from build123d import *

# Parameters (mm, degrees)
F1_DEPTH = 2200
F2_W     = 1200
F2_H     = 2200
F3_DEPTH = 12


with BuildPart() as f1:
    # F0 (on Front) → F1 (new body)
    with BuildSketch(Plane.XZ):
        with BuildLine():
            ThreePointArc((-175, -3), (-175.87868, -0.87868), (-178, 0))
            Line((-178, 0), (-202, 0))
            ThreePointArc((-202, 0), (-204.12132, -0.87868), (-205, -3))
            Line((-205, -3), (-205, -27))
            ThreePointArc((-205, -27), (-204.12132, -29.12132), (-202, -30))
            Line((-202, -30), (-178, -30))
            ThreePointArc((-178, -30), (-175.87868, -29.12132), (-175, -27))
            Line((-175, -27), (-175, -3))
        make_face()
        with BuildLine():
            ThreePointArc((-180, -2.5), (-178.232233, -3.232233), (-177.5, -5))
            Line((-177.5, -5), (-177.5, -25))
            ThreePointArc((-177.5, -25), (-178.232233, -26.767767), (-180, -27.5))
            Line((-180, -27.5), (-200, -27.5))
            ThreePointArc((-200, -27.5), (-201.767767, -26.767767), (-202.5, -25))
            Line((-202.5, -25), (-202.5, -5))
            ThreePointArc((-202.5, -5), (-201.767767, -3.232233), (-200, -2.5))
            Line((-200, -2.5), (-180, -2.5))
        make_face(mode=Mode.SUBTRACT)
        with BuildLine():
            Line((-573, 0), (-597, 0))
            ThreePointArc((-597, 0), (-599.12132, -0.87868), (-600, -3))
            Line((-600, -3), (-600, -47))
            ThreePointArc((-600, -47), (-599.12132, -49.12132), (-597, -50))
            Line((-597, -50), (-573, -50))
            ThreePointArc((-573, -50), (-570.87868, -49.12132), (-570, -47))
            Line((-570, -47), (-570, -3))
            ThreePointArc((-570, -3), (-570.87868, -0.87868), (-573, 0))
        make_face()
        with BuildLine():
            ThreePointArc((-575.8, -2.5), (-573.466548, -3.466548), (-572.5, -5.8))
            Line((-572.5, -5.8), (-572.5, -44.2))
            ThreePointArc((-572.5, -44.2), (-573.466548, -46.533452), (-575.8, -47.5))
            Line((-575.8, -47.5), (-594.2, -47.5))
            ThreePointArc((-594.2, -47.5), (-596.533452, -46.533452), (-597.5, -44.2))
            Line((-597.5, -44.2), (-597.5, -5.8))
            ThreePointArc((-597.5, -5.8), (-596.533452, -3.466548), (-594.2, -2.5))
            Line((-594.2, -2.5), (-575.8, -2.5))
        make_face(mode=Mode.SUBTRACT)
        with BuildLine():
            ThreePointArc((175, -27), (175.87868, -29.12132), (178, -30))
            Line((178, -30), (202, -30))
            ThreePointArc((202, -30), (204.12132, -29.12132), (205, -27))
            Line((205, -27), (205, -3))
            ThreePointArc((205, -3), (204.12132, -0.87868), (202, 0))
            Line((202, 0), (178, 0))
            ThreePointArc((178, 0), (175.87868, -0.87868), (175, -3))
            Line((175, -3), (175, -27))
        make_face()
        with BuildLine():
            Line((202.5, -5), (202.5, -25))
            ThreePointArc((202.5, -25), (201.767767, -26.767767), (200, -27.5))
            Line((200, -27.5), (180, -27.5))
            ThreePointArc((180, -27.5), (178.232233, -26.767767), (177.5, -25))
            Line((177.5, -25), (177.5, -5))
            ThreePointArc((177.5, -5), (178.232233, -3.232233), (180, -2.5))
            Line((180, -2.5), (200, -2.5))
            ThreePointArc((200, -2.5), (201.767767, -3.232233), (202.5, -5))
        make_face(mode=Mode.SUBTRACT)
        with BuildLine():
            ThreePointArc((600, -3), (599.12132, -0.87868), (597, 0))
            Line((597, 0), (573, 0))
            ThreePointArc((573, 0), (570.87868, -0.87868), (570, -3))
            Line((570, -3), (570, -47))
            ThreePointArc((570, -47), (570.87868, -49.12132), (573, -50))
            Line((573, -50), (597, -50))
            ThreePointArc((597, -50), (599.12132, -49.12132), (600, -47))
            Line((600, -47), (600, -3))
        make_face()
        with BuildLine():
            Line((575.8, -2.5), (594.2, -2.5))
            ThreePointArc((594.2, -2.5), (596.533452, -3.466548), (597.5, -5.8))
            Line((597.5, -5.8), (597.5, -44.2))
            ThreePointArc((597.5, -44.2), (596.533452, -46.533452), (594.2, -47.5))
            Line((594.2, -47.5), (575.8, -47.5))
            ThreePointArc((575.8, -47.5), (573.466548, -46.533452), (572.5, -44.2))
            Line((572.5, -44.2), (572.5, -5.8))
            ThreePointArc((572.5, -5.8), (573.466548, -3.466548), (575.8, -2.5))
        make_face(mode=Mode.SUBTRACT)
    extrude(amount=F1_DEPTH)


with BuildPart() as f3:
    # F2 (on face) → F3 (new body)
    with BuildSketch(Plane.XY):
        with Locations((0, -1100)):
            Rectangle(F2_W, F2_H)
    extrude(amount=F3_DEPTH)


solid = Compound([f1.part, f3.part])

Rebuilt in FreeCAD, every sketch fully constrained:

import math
import FreeCAD as App
import Part
import Sketcher

V = App.Vector

doc = App.newDocument("Part")
params = doc.addObject("Spreadsheet::Sheet", "Params")
for row, (alias, value) in enumerate([
    ("sketch1_radius", "3.000001 mm"),
    ("sketch1_radius2", "2.5 mm"),
    ("sketch1_radius3", "3.300001 mm"),
    ("sketch1_width", "24 mm"),
    ("sketch1_width2", "20 mm"),
    ("pad1_length", "2200 mm"),
    ("sketch2_width", "1200 mm"),
    ("sketch2_height", "2200 mm"),
    ("pad2_length", "12 mm"),
], start=1):
    params.set(f"A{row}", alias)
    params.set(f"B{row}", "=" + value)
    params.setAlias(f"B{row}", alias)

body = doc.addObject("PartDesign::Body", "Body")
body.AllowCompound = True

# Sketch on XZ plane
sketch1 = body.newObject("Sketcher::SketchObject", "Sketch")
sketch1.AttachmentSupport = (doc.getObject("XZ_Plane"), [""])
sketch1.MapMode = "FlatFace"
sketch1.addGeometry(Part.ArcOfCircle(Part.Circle(V(-178.000001, -3.000001, 0), V(0, 0, 1), 3.000001), math.radians(0.000022), math.radians(89.999978)), False)
sketch1.addGeometry(Part.LineSegment(V(-178, 0, 0), V(-202, 0, 0)), False)
sketch1.addGeometry(Part.ArcOfCircle(Part.Circle(V(-201.999999, -3.000001, 0), V(0, 0, 1), 3.000001), math.radians(90.000022), math.radians(179.999978)), False)
sketch1.addGeometry(Part.LineSegment(V(-205, -3, 0), V(-205, -27, 0)), False)
sketch1.addGeometry(Part.ArcOfCircle(Part.Circle(V(-201.999999, -26.999999, 0), V(0, 0, 1), 3.000001), math.radians(-179.999978), math.radians(-90.000022)), False)
sketch1.addGeometry(Part.LineSegment(V(-202, -30, 0), V(-178, -30, 0)), False)
sketch1.addGeometry(Part.ArcOfCircle(Part.Circle(V(-178.000001, -26.999999, 0), V(0, 0, 1), 3.000001), math.radians(-89.999978), math.radians(-0.000022)), False)
sketch1.addGeometry(Part.LineSegment(V(-175, -27, 0), V(-175, -3, 0)), False)
sketch1.addGeometry(Part.LineSegment(V(-200, -2.5, 0), V(-180, -2.5, 0)), False)
sketch1.addGeometry(Part.ArcOfCircle(Part.Circle(V(-180, -5, 0), V(0, 0, 1), 2.5), math.radians(-0.000004), math.radians(90.000004)), False)
sketch1.addGeometry(Part.LineSegment(V(-177.5, -5, 0), V(-177.5, -25, 0)), False)
sketch1.addGeometry(Part.ArcOfCircle(Part.Circle(V(-180, -25, 0), V(0, 0, 1), 2.5), math.radians(-90.000004), math.radians(0.000004)), False)
sketch1.addGeometry(Part.LineSegment(V(-180, -27.5, 0), V(-200, -27.5, 0)), False)
sketch1.addGeometry(Part.ArcOfCircle(Part.Circle(V(-200, -25, 0), V(0, 0, 1), 2.5), math.radians(179.999996), math.radians(270.000004)), False)
sketch1.addGeometry(Part.LineSegment(V(-202.5, -25, 0), V(-202.5, -5, 0)), False)
sketch1.addGeometry(Part.ArcOfCircle(Part.Circle(V(-200, -5, 0), V(0, 0, 1), 2.5), math.radians(89.999996), math.radians(180.000004)), False)
sketch1.addGeometry(Part.LineSegment(V(-573, 0, 0), V(-597, 0, 0)), False)
sketch1.addGeometry(Part.ArcOfCircle(Part.Circle(V(-596.999999, -3.000001, 0), V(0, 0, 1), 3.000001), math.radians(90.000022), math.radians(179.999978)), False)
sketch1.addGeometry(Part.LineSegment(V(-600, -3, 0), V(-600, -47, 0)), False)
sketch1.addGeometry(Part.ArcOfCircle(Part.Circle(V(-596.999999, -46.999999, 0), V(0, 0, 1), 3.000001), math.radians(-179.999978), math.radians(-90.000022)), False)
sketch1.addGeometry(Part.LineSegment(V(-597, -50, 0), V(-573, -50, 0)), False)
sketch1.addGeometry(Part.ArcOfCircle(Part.Circle(V(-573.000001, -46.999999, 0), V(0, 0, 1), 3.000001), math.radians(-89.999978), math.radians(-0.000022)), False)
sketch1.addGeometry(Part.LineSegment(V(-570, -47, 0), V(-570, -3, 0)), False)
sketch1.addGeometry(Part.ArcOfCircle(Part.Circle(V(-573.000001, -3.000001, 0), V(0, 0, 1), 3.000001), math.radians(0.000022), math.radians(89.999978)), False)
sketch1.addGeometry(Part.LineSegment(V(-594.2, -2.5, 0), V(-575.8, -2.5, 0)), False)
sketch1.addGeometry(Part.ArcOfCircle(Part.Circle(V(-575.800001, -5.800001, 0), V(0, 0, 1), 3.300001), math.radians(0.000022), math.radians(89.999978)), False)
sketch1.addGeometry(Part.LineSegment(V(-572.5, -5.8, 0), V(-572.5, -44.2, 0)), False)
sketch1.addGeometry(Part.ArcOfCircle(Part.Circle(V(-575.800001, -44.199999, 0), V(0, 0, 1), 3.300001), math.radians(-89.999978), math.radians(-0.000022)), False)
sketch1.addGeometry(Part.LineSegment(V(-575.8, -47.5, 0), V(-594.2, -47.5, 0)), False)
sketch1.addGeometry(Part.ArcOfCircle(Part.Circle(V(-594.199999, -44.199999, 0), V(0, 0, 1), 3.300001), math.radians(-179.999978), math.radians(-90.000022)), False)
sketch1.addGeometry(Part.LineSegment(V(-597.5, -44.2, 0), V(-597.5, -5.8, 0)), False)
sketch1.addGeometry(Part.ArcOfCircle(Part.Circle(V(-594.199999, -5.800001, 0), V(0, 0, 1), 3.300001), math.radians(90.000022), math.radians(179.999978)), False)
sketch1.addGeometry(Part.ArcOfCircle(Part.Circle(V(178.000001, -26.999999, 0), V(0, 0, 1), 3.000001), math.radians(-179.999978), math.radians(-90.000022)), False)
sketch1.addGeometry(Part.LineSegment(V(178, -30, 0), V(202, -30, 0)), False)
sketch1.addGeometry(Part.ArcOfCircle(Part.Circle(V(201.999999, -26.999999, 0), V(0, 0, 1), 3.000001), math.radians(-89.999978), math.radians(-0.000022)), False)
sketch1.addGeometry(Part.LineSegment(V(205, -27, 0), V(205, -3, 0)), False)
sketch1.addGeometry(Part.ArcOfCircle(Part.Circle(V(201.999999, -3.000001, 0), V(0, 0, 1), 3.000001), math.radians(0.000022), math.radians(89.999978)), False)
sketch1.addGeometry(Part.LineSegment(V(202, 0, 0), V(178, 0, 0)), False)
sketch1.addGeometry(Part.ArcOfCircle(Part.Circle(V(178.000001, -3.000001, 0), V(0, 0, 1), 3.000001), math.radians(90.000022), math.radians(179.999978)), False)
sketch1.addGeometry(Part.LineSegment(V(175, -3, 0), V(175, -27, 0)), False)
sketch1.addGeometry(Part.ArcOfCircle(Part.Circle(V(200, -5, 0), V(0, 0, 1), 2.5), math.radians(-0.000004), math.radians(90.000004)), False)
sketch1.addGeometry(Part.LineSegment(V(202.5, -5, 0), V(202.5, -25, 0)), False)
sketch1.addGeometry(Part.ArcOfCircle(Part.Circle(V(200, -25, 0), V(0, 0, 1), 2.5), math.radians(-90.000004), math.radians(0.000004)), False)
sketch1.addGeometry(Part.LineSegment(V(200, -27.5, 0), V(180, -27.5, 0)), False)
sketch1.addGeometry(Part.ArcOfCircle(Part.Circle(V(180, -25, 0), V(0, 0, 1), 2.5), math.radians(179.999996), math.radians(270.000004)), False)
sketch1.addGeometry(Part.LineSegment(V(177.5, -25, 0), V(177.5, -5, 0)), False)
sketch1.addGeometry(Part.ArcOfCircle(Part.Circle(V(180, -5, 0), V(0, 0, 1), 2.5), math.radians(89.999996), math.radians(180.000004)), False)
sketch1.addGeometry(Part.LineSegment(V(180, -2.5, 0), V(200, -2.5, 0)), False)
sketch1.addGeometry(Part.ArcOfCircle(Part.Circle(V(596.999999, -3.000001, 0), V(0, 0, 1), 3.000001), math.radians(0.000022), math.radians(89.999978)), False)
sketch1.addGeometry(Part.LineSegment(V(597, 0, 0), V(573, 0, 0)), False)
sketch1.addGeometry(Part.ArcOfCircle(Part.Circle(V(573.000001, -3.000001, 0), V(0, 0, 1), 3.000001), math.radians(90.000022), math.radians(179.999978)), False)
sketch1.addGeometry(Part.LineSegment(V(570, -3, 0), V(570, -47, 0)), False)
sketch1.addGeometry(Part.ArcOfCircle(Part.Circle(V(573.000001, -46.999999, 0), V(0, 0, 1), 3.000001), math.radians(-179.999978), math.radians(-90.000022)), False)
sketch1.addGeometry(Part.LineSegment(V(573, -50, 0), V(597, -50, 0)), False)
sketch1.addGeometry(Part.ArcOfCircle(Part.Circle(V(596.999999, -46.999999, 0), V(0, 0, 1), 3.000001), math.radians(-89.999978), math.radians(-0.000022)), False)
sketch1.addGeometry(Part.LineSegment(V(600, -47, 0), V(600, -3, 0)), False)
sketch1.addGeometry(Part.ArcOfCircle(Part.Circle(V(575.800001, -5.800001, 0), V(0, 0, 1), 3.300001), math.radians(90.000022), math.radians(179.999978)), False)
sketch1.addGeometry(Part.LineSegment(V(575.8, -2.5, 0), V(594.2, -2.5, 0)), False)
sketch1.addGeometry(Part.ArcOfCircle(Part.Circle(V(594.199999, -5.800001, 0), V(0, 0, 1), 3.300001), math.radians(0.000022), math.radians(89.999978)), False)
sketch1.addGeometry(Part.LineSegment(V(597.5, -5.8, 0), V(597.5, -44.2, 0)), False)
sketch1.addGeometry(Part.ArcOfCircle(Part.Circle(V(594.199999, -44.199999, 0), V(0, 0, 1), 3.300001), math.radians(-89.999978), math.radians(-0.000022)), False)
sketch1.addGeometry(Part.LineSegment(V(594.2, -47.5, 0), V(575.8, -47.5, 0)), False)
sketch1.addGeometry(Part.ArcOfCircle(Part.Circle(V(575.800001, -44.199999, 0), V(0, 0, 1), 3.300001), math.radians(-179.999978), math.radians(-90.000022)), False)
sketch1.addGeometry(Part.LineSegment(V(572.5, -44.2, 0), V(572.5, -5.8, 0)), False)
sketch1.addConstraint(Sketcher.Constraint("Tangent", 0, 2, 1, 1))
sketch1.addConstraint(Sketcher.Constraint("Tangent", 1, 2, 2, 1))
sketch1.addConstraint(Sketcher.Constraint("Tangent", 2, 2, 3, 1))
sketch1.addConstraint(Sketcher.Constraint("Tangent", 3, 2, 4, 1))
sketch1.addConstraint(Sketcher.Constraint("Tangent", 4, 2, 5, 1))
sketch1.addConstraint(Sketcher.Constraint("Tangent", 5, 2, 6, 1))
sketch1.addConstraint(Sketcher.Constraint("Tangent", 6, 2, 7, 1))
sketch1.addConstraint(Sketcher.Constraint("Tangent", 7, 2, 0, 1))
sketch1.addConstraint(Sketcher.Constraint("Tangent", 8, 2, 9, 2))
sketch1.addConstraint(Sketcher.Constraint("Tangent", 9, 1, 10, 1))
sketch1.addConstraint(Sketcher.Constraint("Tangent", 10, 2, 11, 2))
sketch1.addConstraint(Sketcher.Constraint("Tangent", 11, 1, 12, 1))
sketch1.addConstraint(Sketcher.Constraint("Tangent", 12, 2, 13, 2))
sketch1.addConstraint(Sketcher.Constraint("Tangent", 13, 1, 14, 1))
sketch1.addConstraint(Sketcher.Constraint("Tangent", 14, 2, 15, 2))
sketch1.addConstraint(Sketcher.Constraint("Tangent", 15, 1, 8, 1))
sketch1.addConstraint(Sketcher.Constraint("Tangent", 16, 2, 17, 1))
sketch1.addConstraint(Sketcher.Constraint("Tangent", 17, 2, 18, 1))
sketch1.addConstraint(Sketcher.Constraint("Tangent", 18, 2, 19, 1))
sketch1.addConstraint(Sketcher.Constraint("Tangent", 19, 2, 20, 1))
sketch1.addConstraint(Sketcher.Constraint("Tangent", 20, 2, 21, 1))
sketch1.addConstraint(Sketcher.Constraint("Tangent", 21, 2, 22, 1))
sketch1.addConstraint(Sketcher.Constraint("Tangent", 22, 2, 23, 1))
sketch1.addConstraint(Sketcher.Constraint("Tangent", 23, 2, 16, 1))
sketch1.addConstraint(Sketcher.Constraint("Tangent", 24, 2, 25, 2))
sketch1.addConstraint(Sketcher.Constraint("Tangent", 25, 1, 26, 1))
sketch1.addConstraint(Sketcher.Constraint("Tangent", 26, 2, 27, 2))
sketch1.addConstraint(Sketcher.Constraint("Tangent", 27, 1, 28, 1))
sketch1.addConstraint(Sketcher.Constraint("Tangent", 28, 2, 29, 2))
sketch1.addConstraint(Sketcher.Constraint("Tangent", 29, 1, 30, 1))
sketch1.addConstraint(Sketcher.Constraint("Tangent", 30, 2, 31, 2))
sketch1.addConstraint(Sketcher.Constraint("Tangent", 31, 1, 24, 1))
sketch1.addConstraint(Sketcher.Constraint("Tangent", 32, 2, 33, 1))
sketch1.addConstraint(Sketcher.Constraint("Tangent", 33, 2, 34, 1))
sketch1.addConstraint(Sketcher.Constraint("Tangent", 34, 2, 35, 1))
sketch1.addConstraint(Sketcher.Constraint("Tangent", 35, 2, 36, 1))
sketch1.addConstraint(Sketcher.Constraint("Tangent", 36, 2, 37, 1))
sketch1.addConstraint(Sketcher.Constraint("Tangent", 37, 2, 38, 1))
sketch1.addConstraint(Sketcher.Constraint("Tangent", 38, 2, 39, 1))
sketch1.addConstraint(Sketcher.Constraint("Tangent", 39, 2, 32, 1))
sketch1.addConstraint(Sketcher.Constraint("Tangent", 40, 1, 41, 1))
sketch1.addConstraint(Sketcher.Constraint("Tangent", 41, 2, 42, 2))
sketch1.addConstraint(Sketcher.Constraint("Tangent", 42, 1, 43, 1))
sketch1.addConstraint(Sketcher.Constraint("Tangent", 43, 2, 44, 2))
sketch1.addConstraint(Sketcher.Constraint("Tangent", 44, 1, 45, 1))
sketch1.addConstraint(Sketcher.Constraint("Tangent", 45, 2, 46, 2))
sketch1.addConstraint(Sketcher.Constraint("Tangent", 46, 1, 47, 1))
sketch1.addConstraint(Sketcher.Constraint("Tangent", 47, 2, 40, 2))
sketch1.addConstraint(Sketcher.Constraint("Tangent", 48, 2, 49, 1))
sketch1.addConstraint(Sketcher.Constraint("Tangent", 49, 2, 50, 1))
sketch1.addConstraint(Sketcher.Constraint("Tangent", 50, 2, 51, 1))
sketch1.addConstraint(Sketcher.Constraint("Tangent", 51, 2, 52, 1))
sketch1.addConstraint(Sketcher.Constraint("Tangent", 52, 2, 53, 1))
sketch1.addConstraint(Sketcher.Constraint("Tangent", 53, 2, 54, 1))
sketch1.addConstraint(Sketcher.Constraint("Tangent", 54, 2, 55, 1))
sketch1.addConstraint(Sketcher.Constraint("Tangent", 55, 2, 48, 1))
sketch1.addConstraint(Sketcher.Constraint("Tangent", 56, 1, 57, 1))
sketch1.addConstraint(Sketcher.Constraint("Tangent", 57, 2, 58, 2))
sketch1.addConstraint(Sketcher.Constraint("Tangent", 58, 1, 59, 1))
sketch1.addConstraint(Sketcher.Constraint("Tangent", 59, 2, 60, 2))
sketch1.addConstraint(Sketcher.Constraint("Tangent", 60, 1, 61, 1))
sketch1.addConstraint(Sketcher.Constraint("Tangent", 61, 2, 62, 2))
sketch1.addConstraint(Sketcher.Constraint("Tangent", 62, 1, 63, 1))
sketch1.addConstraint(Sketcher.Constraint("Tangent", 63, 2, 56, 2))
sketch1.addConstraint(Sketcher.Constraint("Horizontal", 1))
sketch1.addConstraint(Sketcher.Constraint("Vertical", 3))
sketch1.addConstraint(Sketcher.Constraint("Horizontal", 5))
sketch1.addConstraint(Sketcher.Constraint("Vertical", 7))
sketch1.addConstraint(Sketcher.Constraint("Horizontal", 8))
sketch1.addConstraint(Sketcher.Constraint("Vertical", 10))
sketch1.addConstraint(Sketcher.Constraint("Horizontal", 12))
sketch1.addConstraint(Sketcher.Constraint("Vertical", 14))
sketch1.addConstraint(Sketcher.Constraint("Horizontal", 16))
sketch1.addConstraint(Sketcher.Constraint("Vertical", 18))
sketch1.addConstraint(Sketcher.Constraint("Horizontal", 20))
sketch1.addConstraint(Sketcher.Constraint("Vertical", 22))
sketch1.addConstraint(Sketcher.Constraint("Horizontal", 24))
sketch1.addConstraint(Sketcher.Constraint("Vertical", 26))
sketch1.addConstraint(Sketcher.Constraint("Horizontal", 28))
sketch1.addConstraint(Sketcher.Constraint("Vertical", 30))
sketch1.addConstraint(Sketcher.Constraint("Horizontal", 33))
sketch1.addConstraint(Sketcher.Constraint("Vertical", 35))
sketch1.addConstraint(Sketcher.Constraint("Horizontal", 37))
sketch1.addConstraint(Sketcher.Constraint("Vertical", 39))
sketch1.addConstraint(Sketcher.Constraint("Vertical", 41))
sketch1.addConstraint(Sketcher.Constraint("Horizontal", 43))
sketch1.addConstraint(Sketcher.Constraint("Vertical", 45))
sketch1.addConstraint(Sketcher.Constraint("Horizontal", 47))
sketch1.addConstraint(Sketcher.Constraint("Horizontal", 49))
sketch1.addConstraint(Sketcher.Constraint("Vertical", 51))
sketch1.addConstraint(Sketcher.Constraint("Horizontal", 53))
sketch1.addConstraint(Sketcher.Constraint("Vertical", 55))
sketch1.addConstraint(Sketcher.Constraint("Horizontal", 57))
sketch1.addConstraint(Sketcher.Constraint("Vertical", 59))
sketch1.addConstraint(Sketcher.Constraint("Horizontal", 61))
sketch1.addConstraint(Sketcher.Constraint("Vertical", 63))
sketch1.addConstraint(Sketcher.Constraint("Equal", 0, 2))
sketch1.addConstraint(Sketcher.Constraint("Equal", 2, 4))
sketch1.addConstraint(Sketcher.Constraint("Equal", 4, 6))
sketch1.addConstraint(Sketcher.Constraint("Equal", 9, 11))
sketch1.addConstraint(Sketcher.Constraint("Equal", 11, 13))
sketch1.addConstraint(Sketcher.Constraint("Equal", 13, 15))
sketch1.addConstraint(Sketcher.Constraint("Equal", 6, 17))
sketch1.addConstraint(Sketcher.Constraint("Equal", 17, 19))
sketch1.addConstraint(Sketcher.Constraint("Equal", 19, 21))
sketch1.addConstraint(Sketcher.Constraint("Equal", 21, 23))
sketch1.addConstraint(Sketcher.Constraint("Equal", 25, 27))
sketch1.addConstraint(Sketcher.Constraint("Equal", 27, 29))
sketch1.addConstraint(Sketcher.Constraint("Equal", 29, 31))
sketch1.addConstraint(Sketcher.Constraint("Equal", 23, 32))
sketch1.addConstraint(Sketcher.Constraint("Equal", 32, 34))
sketch1.addConstraint(Sketcher.Constraint("Equal", 34, 36))
sketch1.addConstraint(Sketcher.Constraint("Equal", 36, 38))
sketch1.addConstraint(Sketcher.Constraint("Equal", 15, 40))
sketch1.addConstraint(Sketcher.Constraint("Equal", 40, 42))
sketch1.addConstraint(Sketcher.Constraint("Equal", 42, 44))
sketch1.addConstraint(Sketcher.Constraint("Equal", 44, 46))
sketch1.addConstraint(Sketcher.Constraint("Equal", 38, 48))
sketch1.addConstraint(Sketcher.Constraint("Equal", 48, 50))
sketch1.addConstraint(Sketcher.Constraint("Equal", 50, 52))
sketch1.addConstraint(Sketcher.Constraint("Equal", 52, 54))
sketch1.addConstraint(Sketcher.Constraint("Equal", 31, 56))
sketch1.addConstraint(Sketcher.Constraint("Equal", 56, 58))
sketch1.addConstraint(Sketcher.Constraint("Equal", 58, 60))
sketch1.addConstraint(Sketcher.Constraint("Equal", 60, 62))
sketch1.addConstraint(Sketcher.Constraint("Symmetric", 1, 2, 36, 2, -1, 1))
sketch1.addConstraint(Sketcher.Constraint("Symmetric", 16, 2, 48, 2, -1, 1))
sketch1.addConstraint(Sketcher.Constraint("Symmetric", 6, 3, 32, 3, -2))
sketch1.addConstraint(Sketcher.Constraint("Symmetric", 15, 3, 40, 3, -2))
sketch1.addConstraint(Sketcher.Constraint("Symmetric", 11, 3, 44, 3, -2))
sketch1.addConstraint(Sketcher.Constraint("Symmetric", 23, 3, 50, 3, -2))
sketch1.addConstraint(Sketcher.Constraint("Symmetric", 25, 3, 56, 3, -2))
sketch1.addConstraint(Sketcher.Constraint("Symmetric", 29, 3, 60, 3, -2))
sketch1.addConstraint(Sketcher.Constraint("PointOnObject", 0, 2, -1))
sketch1.addConstraint(Sketcher.Constraint("Horizontal", 21, 3, 52, 3))
sketch1.addConstraint(Sketcher.Constraint("Horizontal", 15, 1, 24, 2))
sketch1.addConstraint(Sketcher.Constraint("Equal", 5, 16))
sketch1.addConstraint(Sketcher.Constraint("Equal", 53, 3))
sketch1.addConstraint(Sketcher.Constraint("Equal", 47, 10))
sketch1.addConstraint(Sketcher.Constraint("Radius", 0, 3.000001))
sketch1.addConstraint(Sketcher.Constraint("Radius", 9, 2.5))
sketch1.addConstraint(Sketcher.Constraint("Radius", 25, 3.300001))
sketch1.addConstraint(Sketcher.Constraint("DistanceX", 1, 2, 1, 1, 24.0))
sketch1.addConstraint(Sketcher.Constraint("DistanceX", 8, 1, 8, 2, 20.0))
sketch1.addConstraint(Sketcher.Constraint("DistanceY", 18, 2, 18, 1, 44.0))
sketch1.addConstraint(Sketcher.Constraint("DistanceX", 24, 1, 24, 2, 18.4))
sketch1.addConstraint(Sketcher.Constraint("DistanceY", 26, 2, 26, 1, 38.4))
sketch1.addConstraint(Sketcher.Constraint("DistanceX", 0, 3, -1, 1, 178.000001))
sketch1.addConstraint(Sketcher.Constraint("DistanceX", 9, 3, -1, 1, 180.0))
sketch1.addConstraint(Sketcher.Constraint("DistanceY", 9, 3, -1, 1, 5.0))
sketch1.addConstraint(Sketcher.Constraint("DistanceX", 17, 3, -1, 1, 596.999999))
sketch1.addConstraint(Sketcher.Constraint("DistanceX", 25, 3, -1, 1, 575.800001))
sketch1.setExpression("Constraints[139]", "Params.sketch1_radius")
sketch1.setExpression("Constraints[140]", "Params.sketch1_radius2")
sketch1.setExpression("Constraints[141]", "Params.sketch1_radius3")
sketch1.setExpression("Constraints[142]", "Params.sketch1_width")
sketch1.setExpression("Constraints[143]", "Params.sketch1_width2")
pad1 = body.newObject("PartDesign::Pad", "Pad")
pad1.Profile = sketch1
pad1.setExpression("Length", "Params.pad1_length")
body2 = doc.addObject("PartDesign::Body", "Body001")

# Sketch on XY plane
sketch2 = body2.newObject("Sketcher::SketchObject", "Sketch001")
sketch2.AttachmentSupport = (doc.getObject("XY_Plane001"), [""])
sketch2.MapMode = "FlatFace"
sketch2.addGeometry(Part.LineSegment(V(-600, 0, 0), V(-600, -2200, 0)), False)
sketch2.addGeometry(Part.LineSegment(V(-600, -2200, 0), V(600, -2200, 0)), False)
sketch2.addGeometry(Part.LineSegment(V(600, -2200, 0), V(600, 0, 0)), False)
sketch2.addGeometry(Part.LineSegment(V(600, 0, 0), V(-600, 0, 0)), False)
sketch2.addConstraint(Sketcher.Constraint("Coincident", 0, 2, 1, 1))
sketch2.addConstraint(Sketcher.Constraint("Coincident", 1, 2, 2, 1))
sketch2.addConstraint(Sketcher.Constraint("Coincident", 2, 2, 3, 1))
sketch2.addConstraint(Sketcher.Constraint("Coincident", 3, 2, 0, 1))
sketch2.addConstraint(Sketcher.Constraint("Vertical", 0))
sketch2.addConstraint(Sketcher.Constraint("Horizontal", 1))
sketch2.addConstraint(Sketcher.Constraint("Vertical", 2))
sketch2.addConstraint(Sketcher.Constraint("Horizontal", 3))
sketch2.addConstraint(Sketcher.Constraint("Symmetric", 2, 2, 3, 2, -1, 1))
sketch2.addConstraint(Sketcher.Constraint("DistanceX", 1, 1, 1, 2, 1200.0))
sketch2.addConstraint(Sketcher.Constraint("DistanceY", 0, 2, 0, 1, 2200.0))
sketch2.setExpression("Constraints[9]", "Params.sketch2_width")
sketch2.setExpression("Constraints[10]", "Params.sketch2_height")
pad2 = body2.newObject("PartDesign::Pad", "Pad001")
pad2.Profile = sketch2
pad2.setExpression("Length", "Params.pad2_length")

doc.recompute()
